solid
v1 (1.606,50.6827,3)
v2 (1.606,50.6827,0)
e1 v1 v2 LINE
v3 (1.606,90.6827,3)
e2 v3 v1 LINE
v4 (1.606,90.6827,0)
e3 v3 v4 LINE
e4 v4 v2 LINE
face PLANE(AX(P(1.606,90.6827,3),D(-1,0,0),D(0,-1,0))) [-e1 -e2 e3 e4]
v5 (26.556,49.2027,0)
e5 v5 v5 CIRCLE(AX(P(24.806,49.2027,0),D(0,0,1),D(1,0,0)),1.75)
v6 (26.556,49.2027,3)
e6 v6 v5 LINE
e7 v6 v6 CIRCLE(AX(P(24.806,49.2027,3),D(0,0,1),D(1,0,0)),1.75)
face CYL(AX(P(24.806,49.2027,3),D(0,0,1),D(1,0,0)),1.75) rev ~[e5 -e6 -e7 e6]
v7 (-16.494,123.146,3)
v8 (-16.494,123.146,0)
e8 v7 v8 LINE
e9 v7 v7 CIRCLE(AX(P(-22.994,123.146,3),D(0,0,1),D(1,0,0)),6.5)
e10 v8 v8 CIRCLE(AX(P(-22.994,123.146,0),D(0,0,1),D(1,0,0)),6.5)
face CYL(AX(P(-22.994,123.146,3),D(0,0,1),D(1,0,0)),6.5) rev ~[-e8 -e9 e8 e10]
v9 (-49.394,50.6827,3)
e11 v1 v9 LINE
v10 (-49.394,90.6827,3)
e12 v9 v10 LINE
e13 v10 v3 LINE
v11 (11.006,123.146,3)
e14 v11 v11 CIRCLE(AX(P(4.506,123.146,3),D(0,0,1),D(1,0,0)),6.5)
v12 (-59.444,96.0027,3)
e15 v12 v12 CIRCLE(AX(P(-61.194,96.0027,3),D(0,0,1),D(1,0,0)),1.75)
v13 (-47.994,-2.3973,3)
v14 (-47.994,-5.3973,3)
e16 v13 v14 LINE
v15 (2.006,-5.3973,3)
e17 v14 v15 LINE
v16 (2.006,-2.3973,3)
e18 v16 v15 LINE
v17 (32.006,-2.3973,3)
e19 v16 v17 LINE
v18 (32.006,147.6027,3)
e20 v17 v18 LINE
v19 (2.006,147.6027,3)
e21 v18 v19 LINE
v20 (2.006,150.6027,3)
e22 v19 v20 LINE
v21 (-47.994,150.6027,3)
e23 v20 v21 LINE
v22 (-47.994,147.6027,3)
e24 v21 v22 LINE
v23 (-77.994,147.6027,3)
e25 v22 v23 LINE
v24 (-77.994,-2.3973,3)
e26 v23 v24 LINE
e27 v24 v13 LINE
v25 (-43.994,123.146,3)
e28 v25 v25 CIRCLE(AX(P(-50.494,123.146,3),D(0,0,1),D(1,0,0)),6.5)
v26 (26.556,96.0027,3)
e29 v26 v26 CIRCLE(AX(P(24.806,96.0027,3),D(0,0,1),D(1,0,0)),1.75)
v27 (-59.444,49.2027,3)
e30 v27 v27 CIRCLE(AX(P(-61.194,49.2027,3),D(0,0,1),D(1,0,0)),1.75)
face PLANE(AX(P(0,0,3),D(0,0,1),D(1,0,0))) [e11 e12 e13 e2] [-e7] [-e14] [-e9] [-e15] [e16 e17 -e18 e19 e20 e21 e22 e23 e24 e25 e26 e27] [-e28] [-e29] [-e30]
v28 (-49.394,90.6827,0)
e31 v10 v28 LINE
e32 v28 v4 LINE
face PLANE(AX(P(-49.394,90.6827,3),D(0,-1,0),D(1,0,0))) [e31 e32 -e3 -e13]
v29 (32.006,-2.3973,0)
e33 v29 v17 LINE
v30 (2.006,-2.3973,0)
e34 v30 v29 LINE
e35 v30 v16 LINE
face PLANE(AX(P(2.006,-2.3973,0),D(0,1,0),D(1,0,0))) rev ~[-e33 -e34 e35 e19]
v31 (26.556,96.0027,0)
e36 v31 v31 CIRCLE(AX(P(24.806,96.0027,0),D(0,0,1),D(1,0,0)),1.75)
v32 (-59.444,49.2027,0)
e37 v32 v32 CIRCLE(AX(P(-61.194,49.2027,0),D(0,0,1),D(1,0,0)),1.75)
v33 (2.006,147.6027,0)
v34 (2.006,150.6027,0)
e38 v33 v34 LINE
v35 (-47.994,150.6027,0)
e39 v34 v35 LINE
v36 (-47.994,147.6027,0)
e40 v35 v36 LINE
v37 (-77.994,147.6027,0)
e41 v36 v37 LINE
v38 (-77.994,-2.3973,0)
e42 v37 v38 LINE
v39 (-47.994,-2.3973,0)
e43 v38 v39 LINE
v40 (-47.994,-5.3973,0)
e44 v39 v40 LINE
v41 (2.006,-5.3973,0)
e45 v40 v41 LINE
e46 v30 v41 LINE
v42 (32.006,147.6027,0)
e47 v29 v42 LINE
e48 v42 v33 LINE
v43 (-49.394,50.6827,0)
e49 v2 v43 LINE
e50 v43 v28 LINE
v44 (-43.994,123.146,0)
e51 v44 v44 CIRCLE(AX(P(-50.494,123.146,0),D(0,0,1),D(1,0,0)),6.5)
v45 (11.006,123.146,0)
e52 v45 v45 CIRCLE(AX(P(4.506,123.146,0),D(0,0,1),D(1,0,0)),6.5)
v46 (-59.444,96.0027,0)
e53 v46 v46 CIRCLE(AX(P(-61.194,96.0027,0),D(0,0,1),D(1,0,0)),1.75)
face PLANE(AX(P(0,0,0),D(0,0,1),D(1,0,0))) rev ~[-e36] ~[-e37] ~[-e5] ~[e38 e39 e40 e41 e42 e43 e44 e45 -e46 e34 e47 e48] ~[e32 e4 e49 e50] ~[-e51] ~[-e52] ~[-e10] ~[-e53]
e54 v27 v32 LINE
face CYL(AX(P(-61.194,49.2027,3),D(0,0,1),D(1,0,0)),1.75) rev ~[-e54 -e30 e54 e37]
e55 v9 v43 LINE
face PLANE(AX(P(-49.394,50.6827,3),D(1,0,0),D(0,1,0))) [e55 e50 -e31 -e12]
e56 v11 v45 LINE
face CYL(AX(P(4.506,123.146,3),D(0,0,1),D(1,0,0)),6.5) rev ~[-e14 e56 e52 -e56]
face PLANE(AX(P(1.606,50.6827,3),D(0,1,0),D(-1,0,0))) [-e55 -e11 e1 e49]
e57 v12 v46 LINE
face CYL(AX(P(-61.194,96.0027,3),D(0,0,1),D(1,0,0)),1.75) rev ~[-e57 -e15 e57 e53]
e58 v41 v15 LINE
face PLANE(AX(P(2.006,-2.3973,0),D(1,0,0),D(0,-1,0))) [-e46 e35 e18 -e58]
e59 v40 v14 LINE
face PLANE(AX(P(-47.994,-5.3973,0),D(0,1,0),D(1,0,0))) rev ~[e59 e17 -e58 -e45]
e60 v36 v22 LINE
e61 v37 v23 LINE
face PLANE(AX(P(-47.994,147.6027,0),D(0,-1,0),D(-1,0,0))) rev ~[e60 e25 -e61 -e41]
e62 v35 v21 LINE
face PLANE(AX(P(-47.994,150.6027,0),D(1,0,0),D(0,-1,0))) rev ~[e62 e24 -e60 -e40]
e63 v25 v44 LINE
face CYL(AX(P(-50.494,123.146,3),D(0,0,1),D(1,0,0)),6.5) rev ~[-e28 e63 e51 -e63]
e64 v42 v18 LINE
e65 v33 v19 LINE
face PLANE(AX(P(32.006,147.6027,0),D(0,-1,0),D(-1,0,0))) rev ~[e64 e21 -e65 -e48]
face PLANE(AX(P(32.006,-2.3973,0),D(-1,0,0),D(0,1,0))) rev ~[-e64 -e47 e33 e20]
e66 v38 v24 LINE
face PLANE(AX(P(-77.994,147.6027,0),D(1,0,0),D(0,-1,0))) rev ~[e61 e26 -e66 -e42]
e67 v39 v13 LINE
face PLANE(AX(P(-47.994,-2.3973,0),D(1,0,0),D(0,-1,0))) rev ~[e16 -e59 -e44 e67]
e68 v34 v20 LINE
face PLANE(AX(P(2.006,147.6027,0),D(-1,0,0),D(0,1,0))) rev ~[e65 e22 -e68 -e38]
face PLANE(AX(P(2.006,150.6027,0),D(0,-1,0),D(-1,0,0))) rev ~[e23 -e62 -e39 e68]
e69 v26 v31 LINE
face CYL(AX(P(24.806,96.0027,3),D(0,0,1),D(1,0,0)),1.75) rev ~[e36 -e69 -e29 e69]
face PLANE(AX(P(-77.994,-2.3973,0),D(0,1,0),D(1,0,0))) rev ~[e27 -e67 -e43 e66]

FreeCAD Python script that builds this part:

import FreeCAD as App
import Part
import Sketcher

V = App.Vector

doc = App.newDocument("Part")
body = doc.addObject("PartDesign::Body", "Body")

sketch1 = body.newObject("Sketcher::SketchObject", "Sketch")
sketch1.AttachmentSupport = (doc.getObject("XY_Plane"), [""])
sketch1.MapMode = "FlatFace"
sketch1.addGeometry([
    Part.LineSegment(V(-77.994, 147.6027, 0), V(-77.994, -2.3973, 0)),
    Part.LineSegment(V(-77.994, -2.3973, 0), V(-47.994, -2.3973, 0)),
    Part.LineSegment(V(-47.994, -2.3973, 0), V(-47.994, -5.3973, 0)),
    Part.LineSegment(V(-47.994, -5.3973, 0), V(2.006, -5.3973, 0)),
    Part.LineSegment(V(2.006, -5.3973, 0), V(2.006, -2.3973, 0)),
    Part.LineSegment(V(2.006, -2.3973, 0), V(32.006, -2.3973, 0)),
    Part.LineSegment(V(32.006, -2.3973, 0), V(32.006, 147.6027, 0)),
    Part.LineSegment(V(32.006, 147.6027, 0), V(2.006, 147.6027, 0)),
    Part.LineSegment(V(2.006, 147.6027, 0), V(2.006, 150.6027, 0)),
    Part.LineSegment(V(2.006, 150.6027, 0), V(-47.994, 150.6027, 0)),
    Part.LineSegment(V(-47.994, 150.6027, 0), V(-47.994, 147.6027, 0)),
    Part.LineSegment(V(-47.994, 147.6027, 0), V(-77.994, 147.6027, 0)),
], False)
sketch1.addConstraint([
    Sketcher.Constraint("Coincident", 0, 2, 1, 1),
    Sketcher.Constraint("Coincident", 1, 2, 2, 1),
    Sketcher.Constraint("Coincident", 2, 2, 3, 1),
    Sketcher.Constraint("Coincident", 3, 2, 4, 1),
    Sketcher.Constraint("Coincident", 4, 2, 5, 1),
    Sketcher.Constraint("Coincident", 5, 2, 6, 1),
    Sketcher.Constraint("Coincident", 6, 2, 7, 1),
    Sketcher.Constraint("Coincident", 7, 2, 8, 1),
    Sketcher.Constraint("Coincident", 8, 2, 9, 1),
    Sketcher.Constraint("Coincident", 9, 2, 10, 1),
    Sketcher.Constraint("Coincident", 10, 2, 11, 1),
    Sketcher.Constraint("Coincident", 11, 2, 0, 1),
    Sketcher.Constraint("Vertical", 0),
    Sketcher.Constraint("Horizontal", 1),
    Sketcher.Constraint("Vertical", 2),
    Sketcher.Constraint("Horizontal", 3),
    Sketcher.Constraint("Vertical", 4),
    Sketcher.Constraint("Horizontal", 5),
    Sketcher.Constraint("Vertical", 6),
    Sketcher.Constraint("Horizontal", 7),
    Sketcher.Constraint("Vertical", 8),
    Sketcher.Constraint("Horizontal", 9),
    Sketcher.Constraint("Vertical", 10),
    Sketcher.Constraint("Horizontal", 11),
    Sketcher.Constraint("Horizontal", 1, 2, 4, 2),
    Sketcher.Constraint("Horizontal", 7, 2, 10, 2),
    Sketcher.Constraint("Vertical", 4, 2, 7, 2),
    Sketcher.Constraint("Vertical", 2, 2, 9, 2),
    Sketcher.Constraint("Equal", 1, 5),
    Sketcher.Constraint("Equal", 4, 8),
    Sketcher.Constraint("DistanceX", 1, 1, 1, 2, 30.0),
    Sketcher.Constraint("DistanceX", 3, 1, 3, 2, 50.0),
    Sketcher.Constraint("DistanceY", 0, 2, 0, 1, 150.0),
    Sketcher.Constraint("DistanceY", 2, 2, 2, 1, 3.0),
    Sketcher.Constraint("DistanceX", 0, 2, -1, 1, 77.994),
    Sketcher.Constraint("DistanceY", 0, 2, -1, 1, 2.3973),
])
pad1 = body.newObject("PartDesign::Pad", "Pad")
pad1.Profile = sketch1
pad1.Length = 3

sketch2 = body.newObject("Sketcher::SketchObject", "Sketch001")
sketch2.AttachmentSupport = (doc.getObject("XY_Plane"), [""])
sketch2.MapMode = "FlatFace"
sketch2.AttachmentOffset = App.Placement(V(0, 0, 3), App.Rotation())
sketch2.addGeometry([
    Part.Circle(V(24.806, 49.2027, 0), V(0, 0, 1), 1.75),
    Part.Circle(V(24.806, 96.0027, 0), V(0, 0, 1), 1.75),
    Part.Circle(V(-61.194, 96.0027, 0), V(0, 0, 1), 1.75),
    Part.Circle(V(-61.194, 49.2027, 0), V(0, 0, 1), 1.75),
    Part.LineSegment(V(-49.394, 50.6827, 0), V(1.606, 50.6827, 0)),
    Part.LineSegment(V(1.606, 50.6827, 0), V(1.606, 90.6827, 0)),
    Part.LineSegment(V(1.606, 90.6827, 0), V(-49.394, 90.6827, 0)),
    Part.LineSegment(V(-49.394, 90.6827, 0), V(-49.394, 50.6827, 0)),
], False)
sketch2.addConstraint([
    Sketcher.Constraint("Coincident", 4, 2, 5, 1),
    Sketcher.Constraint("Coincident", 5, 2, 6, 1),
    Sketcher.Constraint("Coincident", 6, 2, 7, 1),
    Sketcher.Constraint("Coincident", 7, 2, 4, 1),
    Sketcher.Constraint("Horizontal", 4),
    Sketcher.Constraint("Vertical", 5),
    Sketcher.Constraint("Horizontal", 6),
    Sketcher.Constraint("Vertical", 7),
    Sketcher.Constraint("Equal", 0, 1),
    Sketcher.Constraint("Equal", 1, 2),
    Sketcher.Constraint("Equal", 2, 3),
    Sketcher.Constraint("Horizontal", 1, 3, 2, 3),
    Sketcher.Constraint("Horizontal", 0, 3, 3, 3),
    Sketcher.Constraint("Vertical", 0, 3, 1, 3),
    Sketcher.Constraint("Vertical", 2, 3, 3, 3),
    Sketcher.Constraint("Diameter", 0, 3.5),
    Sketcher.Constraint("DistanceX", 4, 1, 4, 2, 51.0),
    Sketcher.Constraint("DistanceY", 5, 1, 5, 2, 40.0),
    Sketcher.Constraint("DistanceX", 2, 3, 1, 3, 86.0),
    Sketcher.Constraint("DistanceY", 0, 3, 1, 3, 46.8),
    Sketcher.Constraint("DistanceX", 4, 2, 0, 3, 23.2),
    Sketcher.Constraint("DistanceY", 0, 3, 4, 2, 1.48),
    Sketcher.Constraint("DistanceX", -1, 1, 0, 3, 24.806),
    Sketcher.Constraint("DistanceY", -1, 1, 0, 3, 49.2027),
])
pocket1 = body.newObject("PartDesign::Pocket", "Pocket")
pocket1.Profile = sketch2
pocket1.Length = 3

sketch3 = body.newObject("Sketcher::SketchObject", "Sketch002")
sketch3.AttachmentSupport = (doc.getObject("XY_Plane"), [""])
sketch3.MapMode = "FlatFace"
sketch3.AttachmentOffset = App.Placement(V(0, 0, 3), App.Rotation())
sketch3.addGeometry([
    Part.Circle(V(-50.494, 123.146, 0), V(0, 0, 1), 6.5),
    Part.Circle(V(-22.994, 123.146, 0), V(0, 0, 1), 6.5),
    Part.Circle(V(4.506, 123.146, 0), V(0, 0, 1), 6.5),
], False)
sketch3.addConstraint([
    Sketcher.Constraint("Equal", 0, 1),
    Sketcher.Constraint("Equal", 1, 2),
    Sketcher.Constraint("Horizontal", 0, 3, 1, 3),
    Sketcher.Constraint("Horizontal", 1, 3, 2, 3),
    Sketcher.Constraint("Diameter", 0, 13.0),
    Sketcher.Constraint("DistanceX", 0, 3, 2, 3, 55.0),
    Sketcher.Constraint("DistanceX", 0, 3, 1, 3, 27.5),
    Sketcher.Constraint("DistanceX", 0, 3, -1, 1, 50.494),
    Sketcher.Constraint("DistanceY", -1, 1, 0, 3, 123.146),
])
pocket2 = body.newObject("PartDesign::Pocket", "Pocket001")
pocket2.Profile = sketch3
pocket2.Length = 3

doc.recompute()
